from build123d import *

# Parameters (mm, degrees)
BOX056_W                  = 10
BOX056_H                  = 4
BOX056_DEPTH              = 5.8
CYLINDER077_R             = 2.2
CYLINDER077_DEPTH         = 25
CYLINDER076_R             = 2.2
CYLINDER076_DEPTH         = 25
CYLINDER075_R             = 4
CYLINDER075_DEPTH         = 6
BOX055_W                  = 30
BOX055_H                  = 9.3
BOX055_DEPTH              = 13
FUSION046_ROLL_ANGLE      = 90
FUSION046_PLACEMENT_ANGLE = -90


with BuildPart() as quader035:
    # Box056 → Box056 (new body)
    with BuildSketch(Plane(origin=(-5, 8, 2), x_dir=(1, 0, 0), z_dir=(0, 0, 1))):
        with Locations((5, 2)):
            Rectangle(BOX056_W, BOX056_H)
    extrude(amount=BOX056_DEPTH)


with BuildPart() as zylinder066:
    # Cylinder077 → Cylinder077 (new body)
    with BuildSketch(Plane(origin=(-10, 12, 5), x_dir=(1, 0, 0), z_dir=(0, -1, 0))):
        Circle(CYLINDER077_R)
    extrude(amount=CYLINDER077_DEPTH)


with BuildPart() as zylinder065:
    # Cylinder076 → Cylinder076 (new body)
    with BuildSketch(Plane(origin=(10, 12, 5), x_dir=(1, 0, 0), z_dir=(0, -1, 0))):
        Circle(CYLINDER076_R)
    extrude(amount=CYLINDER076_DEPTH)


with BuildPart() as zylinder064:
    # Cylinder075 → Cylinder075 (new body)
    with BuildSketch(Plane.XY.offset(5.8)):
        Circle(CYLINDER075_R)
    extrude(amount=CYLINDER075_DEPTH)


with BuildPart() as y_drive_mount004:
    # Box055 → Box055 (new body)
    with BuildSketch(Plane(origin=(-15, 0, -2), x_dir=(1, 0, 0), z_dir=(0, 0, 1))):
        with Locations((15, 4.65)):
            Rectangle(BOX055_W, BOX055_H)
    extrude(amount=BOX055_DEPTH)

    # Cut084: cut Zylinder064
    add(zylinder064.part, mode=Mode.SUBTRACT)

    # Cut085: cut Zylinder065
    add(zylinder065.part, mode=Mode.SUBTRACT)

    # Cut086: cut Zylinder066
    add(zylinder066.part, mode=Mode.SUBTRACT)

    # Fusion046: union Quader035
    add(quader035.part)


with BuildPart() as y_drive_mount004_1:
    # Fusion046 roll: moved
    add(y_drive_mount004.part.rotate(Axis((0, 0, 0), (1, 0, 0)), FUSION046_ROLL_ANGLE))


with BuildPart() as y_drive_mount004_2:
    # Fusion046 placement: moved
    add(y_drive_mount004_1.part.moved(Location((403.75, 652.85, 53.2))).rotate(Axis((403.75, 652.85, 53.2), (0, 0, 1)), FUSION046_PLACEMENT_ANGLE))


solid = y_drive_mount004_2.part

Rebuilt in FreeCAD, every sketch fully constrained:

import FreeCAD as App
import Part
import Sketcher
from FreeCAD import Vector

doc = App.newDocument("Part")
body = doc.addObject("PartDesign::Body", "Body")

# Sketch on XY plane
sketch1 = body.newObject("Sketcher::SketchObject", "Sketch")
sketch1.AttachmentSupport = (doc.getObject("XY_Plane"), [""])
sketch1.MapMode = "FlatFace"
sketch1.AttachmentOffset = App.Placement(Vector(0, 0, 2), App.Rotation())
sketch1.addGeometry([
    Part.LineSegment(Vector(-5, 12, 0), Vector(-5, 8, 0)),
    Part.LineSegment(Vector(-5, 8, 0), Vector(5, 8, 0)),
    Part.LineSegment(Vector(5, 8, 0), Vector(5, 12, 0)),
    Part.LineSegment(Vector(5, 12, 0), Vector(-5, 12, 0)),
], False)
sketch1.addConstraint([
    Sketcher.Constraint("Coincident", 0, 2, 1, 1),
    Sketcher.Constraint("Coincident", 1, 2, 2, 1),
    Sketcher.Constraint("Coincident", 2, 2, 3, 1),
    Sketcher.Constraint("Coincident", 3, 2, 0, 1),
    Sketcher.Constraint("Vertical", 0),
    Sketcher.Constraint("Horizontal", 1),
    Sketcher.Constraint("Vertical", 2),
    Sketcher.Constraint("Horizontal", 3),
    Sketcher.Constraint("DistanceX", 1, 1, 1, 2, 10.0),
    Sketcher.Constraint("DistanceY", 0, 2, 0, 1, 4.0),
    Sketcher.Constraint("DistanceX", 0, 2, -1, 1, 5.0),
    Sketcher.Constraint("DistanceY", -1, 1, 0, 2, 8.0),
])
pad1 = body.newObject("PartDesign::Pad", "Pad")
pad1.Profile = sketch1
pad1.Length = 5.8
body2 = doc.addObject("PartDesign::Body", "Body001")

# Sketch on XZ plane
sketch2 = body2.newObject("Sketcher::SketchObject", "Sketch001")
sketch2.AttachmentSupport = (doc.getObject("XZ_Plane001"), [""])
sketch2.MapMode = "FlatFace"
sketch2.AttachmentOffset = App.Placement(Vector(0, 0, -12), App.Rotation())
sketch2.addGeometry(Part.Circle(Vector(-10, 5, 0), Vector(0, 0, 1), 2.2), False)
sketch2.addConstraint([
    Sketcher.Constraint("Diameter", 0, 4.4),
    Sketcher.Constraint("DistanceX", 0, 3, -1, 1, 10.0),
    Sketcher.Constraint("DistanceY", -1, 1, 0, 3, 5.0),
])
pad2 = body2.newObject("PartDesign::Pad", "Pad001")
pad2.Profile = sketch2
pad2.Length = 25
body3 = doc.addObject("PartDesign::Body", "Body002")

# Sketch on XZ plane
sketch3 = body3.newObject("Sketcher::SketchObject", "Sketch002")
sketch3.AttachmentSupport = (doc.getObject("XZ_Plane002"), [""])
sketch3.MapMode = "FlatFace"
sketch3.AttachmentOffset = App.Placement(Vector(0, 0, -12), App.Rotation())
sketch3.addGeometry(Part.Circle(Vector(10, 5, 0), Vector(0, 0, 1), 2.2), False)
sketch3.addConstraint([
    Sketcher.Constraint("Diameter", 0, 4.4),
    Sketcher.Constraint("DistanceX", -1, 1, 0, 3, 10.0),
    Sketcher.Constraint("DistanceY", -1, 1, 0, 3, 5.0),
])
pad3 = body3.newObject("PartDesign::Pad", "Pad002")
pad3.Profile = sketch3
pad3.Length = 25
body4 = doc.addObject("PartDesign::Body", "Body003")

# Sketch on XY plane
sketch4 = body4.newObject("Sketcher::SketchObject", "Sketch003")
sketch4.AttachmentSupport = (doc.getObject("XY_Plane003"), [""])
sketch4.MapMode = "FlatFace"
sketch4.AttachmentOffset = App.Placement(Vector(0, 0, 5.8), App.Rotation())
sketch4.addGeometry(Part.Circle(Vector(0, 0, 0), Vector(0, 0, 1), 4), False)
sketch4.addConstraint([
    Sketcher.Constraint("Coincident", 0, 3, -1, 1),
    Sketcher.Constraint("Diameter", 0, 8.0),
])
pad4 = body4.newObject("PartDesign::Pad", "Pad003")
pad4.Profile = sketch4
pad4.Length = 6
body5 = doc.addObject("PartDesign::Body", "Body004")

# Sketch on XY plane
sketch5 = body5.newObject("Sketcher::SketchObject", "Sketch004")
sketch5.AttachmentSupport = (doc.getObject("XY_Plane004"), [""])
sketch5.MapMode = "FlatFace"
sketch5.AttachmentOffset = App.Placement(Vector(0, 0, -2), App.Rotation())
sketch5.addGeometry([
    Part.LineSegment(Vector(-15, 9.3, 0), Vector(-15, 0, 0)),
    Part.LineSegment(Vector(-15, 0, 0), Vector(15, 0, 0)),
    Part.LineSegment(Vector(15, 0, 0), Vector(15, 9.3, 0)),
    Part.LineSegment(Vector(15, 9.3, 0), Vector(-15, 9.3, 0)),
], False)
sketch5.addConstraint([
    Sketcher.Constraint("Coincident", 0, 2, 1, 1),
    Sketcher.Constraint("Coincident", 1, 2, 2, 1),
    Sketcher.Constraint("Coincident", 2, 2, 3, 1),
    Sketcher.Constraint("Coincident", 3, 2, 0, 1),
    Sketcher.Constraint("Vertical", 0),
    Sketcher.Constraint("Horizontal", 1),
    Sketcher.Constraint("Vertical", 2),
    Sketcher.Constraint("Horizontal", 3),
    Sketcher.Constraint("Symmetric", 0, 2, 1, 2, -1, 1),
    Sketcher.Constraint("DistanceX", 1, 1, 1, 2, 30.0),
    Sketcher.Constraint("DistanceY", 0, 2, 0, 1, 9.3),
])
pad5 = body5.newObject("PartDesign::Pad", "Pad004")
pad5.Profile = sketch5
pad5.Length = 13
doc.recompute()

boolean = body5.newObject("PartDesign::Boolean", "Boolean")
boolean.Type = "Cut"
boolean.addObjects([body4])
doc.recompute()

boolean2 = body5.newObject("PartDesign::Boolean", "Boolean001")
boolean2.Type = "Cut"
boolean2.addObjects([body3])
doc.recompute()

boolean3 = body5.newObject("PartDesign::Boolean", "Boolean002")
boolean3.Type = "Cut"
boolean3.addObjects([body2])
doc.recompute()

boolean4 = body5.newObject("PartDesign::Boolean", "Boolean003")
boolean4.Type = "Fuse"
boolean4.addObjects([body])
body6 = doc.addObject("PartDesign::Body", "Body005")
doc.recompute()

body5.Placement = App.Placement(Vector(0, 0, 0), App.Rotation(Vector(1, 0, 0), 90))
boolean5 = body6.newObject("PartDesign::Boolean", "Boolean004")
boolean5.Type = "Fuse"
boolean5.addObjects([body5])
body7 = doc.addObject("PartDesign::Body", "Body006")
doc.recompute()

body6.Placement = App.Placement(Vector(403.75, 652.85, 53.2), App.Rotation(Vector(0, 0, 1), 270))
boolean6 = body7.newObject("PartDesign::Boolean", "Boolean005")
boolean6.Type = "Fuse"
boolean6.addObjects([body6])

doc.recompute()
